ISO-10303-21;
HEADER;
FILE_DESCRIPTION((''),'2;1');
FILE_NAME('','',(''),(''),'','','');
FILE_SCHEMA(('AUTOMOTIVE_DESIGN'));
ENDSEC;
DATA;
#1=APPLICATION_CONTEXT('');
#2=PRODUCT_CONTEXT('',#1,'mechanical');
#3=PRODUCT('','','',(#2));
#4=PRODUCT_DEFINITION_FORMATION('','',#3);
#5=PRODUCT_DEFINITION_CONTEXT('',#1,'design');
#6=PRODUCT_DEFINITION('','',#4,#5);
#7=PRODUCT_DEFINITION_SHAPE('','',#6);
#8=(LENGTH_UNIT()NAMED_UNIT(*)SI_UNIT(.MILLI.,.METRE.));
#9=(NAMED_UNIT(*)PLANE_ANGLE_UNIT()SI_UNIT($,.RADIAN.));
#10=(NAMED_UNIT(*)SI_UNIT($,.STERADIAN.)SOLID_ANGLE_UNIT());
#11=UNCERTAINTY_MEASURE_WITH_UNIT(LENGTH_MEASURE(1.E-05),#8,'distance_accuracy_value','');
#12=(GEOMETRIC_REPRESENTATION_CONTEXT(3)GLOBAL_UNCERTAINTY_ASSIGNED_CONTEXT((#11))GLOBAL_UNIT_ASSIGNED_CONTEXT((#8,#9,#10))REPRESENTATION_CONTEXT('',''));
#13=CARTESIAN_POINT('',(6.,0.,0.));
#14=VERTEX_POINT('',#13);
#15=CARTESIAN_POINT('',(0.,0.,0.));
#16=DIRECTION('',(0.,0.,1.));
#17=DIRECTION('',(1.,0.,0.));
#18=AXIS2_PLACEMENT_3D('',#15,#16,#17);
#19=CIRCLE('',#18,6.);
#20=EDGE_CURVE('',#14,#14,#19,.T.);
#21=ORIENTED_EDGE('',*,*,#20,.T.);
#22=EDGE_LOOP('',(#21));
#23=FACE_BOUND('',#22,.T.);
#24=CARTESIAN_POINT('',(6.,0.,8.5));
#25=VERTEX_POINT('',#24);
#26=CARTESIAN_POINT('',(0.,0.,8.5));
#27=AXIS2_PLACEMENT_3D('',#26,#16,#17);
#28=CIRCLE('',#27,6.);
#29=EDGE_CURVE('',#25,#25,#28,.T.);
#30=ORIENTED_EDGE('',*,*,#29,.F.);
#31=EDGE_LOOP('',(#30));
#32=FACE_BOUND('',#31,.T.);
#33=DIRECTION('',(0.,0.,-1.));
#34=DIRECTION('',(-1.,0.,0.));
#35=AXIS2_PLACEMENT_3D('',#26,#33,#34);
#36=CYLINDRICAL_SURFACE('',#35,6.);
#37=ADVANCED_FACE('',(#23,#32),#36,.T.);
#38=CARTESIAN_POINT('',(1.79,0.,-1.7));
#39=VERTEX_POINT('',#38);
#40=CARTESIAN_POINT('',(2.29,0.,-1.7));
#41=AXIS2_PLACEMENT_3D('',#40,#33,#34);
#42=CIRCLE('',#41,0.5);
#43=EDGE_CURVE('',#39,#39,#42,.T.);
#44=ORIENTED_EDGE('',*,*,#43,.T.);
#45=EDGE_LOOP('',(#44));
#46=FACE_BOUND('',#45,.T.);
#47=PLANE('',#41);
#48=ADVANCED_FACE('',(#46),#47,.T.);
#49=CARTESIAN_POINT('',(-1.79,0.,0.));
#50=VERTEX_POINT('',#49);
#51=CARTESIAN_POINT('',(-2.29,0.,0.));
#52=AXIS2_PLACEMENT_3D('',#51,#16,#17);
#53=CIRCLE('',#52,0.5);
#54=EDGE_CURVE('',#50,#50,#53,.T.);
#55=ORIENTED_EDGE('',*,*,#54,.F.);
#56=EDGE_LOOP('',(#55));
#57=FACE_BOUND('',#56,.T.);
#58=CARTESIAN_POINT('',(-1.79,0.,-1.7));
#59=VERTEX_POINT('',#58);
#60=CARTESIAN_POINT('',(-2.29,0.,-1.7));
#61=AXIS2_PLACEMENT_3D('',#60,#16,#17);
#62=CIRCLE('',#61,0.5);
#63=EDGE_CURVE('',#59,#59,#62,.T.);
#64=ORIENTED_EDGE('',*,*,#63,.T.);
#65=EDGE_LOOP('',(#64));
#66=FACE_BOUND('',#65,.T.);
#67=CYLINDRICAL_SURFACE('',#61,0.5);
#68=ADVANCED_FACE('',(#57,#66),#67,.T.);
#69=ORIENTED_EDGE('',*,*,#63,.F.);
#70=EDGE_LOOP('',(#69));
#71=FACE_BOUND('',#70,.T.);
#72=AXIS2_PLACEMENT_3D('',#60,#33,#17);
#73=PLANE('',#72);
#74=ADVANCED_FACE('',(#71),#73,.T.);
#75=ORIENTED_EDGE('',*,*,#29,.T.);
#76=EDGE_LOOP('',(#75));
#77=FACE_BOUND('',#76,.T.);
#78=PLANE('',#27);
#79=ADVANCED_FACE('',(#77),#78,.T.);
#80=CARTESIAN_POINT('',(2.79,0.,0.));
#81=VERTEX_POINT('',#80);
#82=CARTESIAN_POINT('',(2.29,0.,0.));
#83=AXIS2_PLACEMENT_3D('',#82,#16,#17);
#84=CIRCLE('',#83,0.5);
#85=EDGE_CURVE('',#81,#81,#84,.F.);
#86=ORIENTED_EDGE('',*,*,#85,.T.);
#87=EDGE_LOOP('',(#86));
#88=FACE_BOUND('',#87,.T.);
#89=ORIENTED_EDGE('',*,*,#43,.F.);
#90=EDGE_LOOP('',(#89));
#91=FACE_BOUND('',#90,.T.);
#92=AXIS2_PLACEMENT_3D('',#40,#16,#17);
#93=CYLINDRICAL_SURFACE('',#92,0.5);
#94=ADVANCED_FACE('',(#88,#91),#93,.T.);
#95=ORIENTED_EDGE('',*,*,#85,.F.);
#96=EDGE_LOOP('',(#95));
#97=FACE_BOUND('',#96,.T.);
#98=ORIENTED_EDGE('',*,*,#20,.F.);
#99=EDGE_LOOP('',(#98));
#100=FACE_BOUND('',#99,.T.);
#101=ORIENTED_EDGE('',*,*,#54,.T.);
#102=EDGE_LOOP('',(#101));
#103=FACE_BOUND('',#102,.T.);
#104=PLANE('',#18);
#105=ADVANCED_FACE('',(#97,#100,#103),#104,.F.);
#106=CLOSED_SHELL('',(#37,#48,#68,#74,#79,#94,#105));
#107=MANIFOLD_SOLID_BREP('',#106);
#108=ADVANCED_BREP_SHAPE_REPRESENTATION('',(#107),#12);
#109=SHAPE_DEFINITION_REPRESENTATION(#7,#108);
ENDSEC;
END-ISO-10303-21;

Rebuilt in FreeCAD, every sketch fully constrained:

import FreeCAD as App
import Part
import Sketcher

V = App.Vector
Q = App.Units.Quantity

doc = App.newDocument("Part")
params = doc.addObject("Spreadsheet::Sheet", "Params")
for row, (alias, value) in enumerate([
    ("sketch1_diameter", "12 mm"),
    ("pad1_length", "8.5 mm"),
    ("sketch2_diameter", "1 mm"),
    ("pad2_length", "1.7 mm"),
], start=1):
    params.set(f"A{row}", alias)
    params.set(f"B{row}", "=" + value)
    params.setAlias(f"B{row}", alias)

body = doc.addObject("PartDesign::Body", "Body")

# Sketch on XY plane
sketch1 = doc.addObject("Sketcher::SketchObject", "Sketch")
body.addObject(sketch1)
sketch1.AttachmentSupport = (doc.XY_Plane, [""])
sketch1.MapMode = "FlatFace"
sketch1.addGeometry(Part.Circle(V(0, 0, 0), V(0, 0, 1), 6), False)
sketch1.addConstraint([
    Sketcher.Constraint("Coincident", 0, 3, -1, 1),
    Sketcher.Constraint("Diameter", 0, Q("12 mm")),
])
sketch1.setExpression("Constraints[1]", "Params.sketch1_diameter")
pad1 = doc.addObject("PartDesign::Pad", "Pad")
body.addObject(pad1)
pad1.Profile = sketch1
pad1.setExpression("Length", "Params.pad1_length")

# Sketch on XY plane
sketch2 = doc.addObject("Sketcher::SketchObject", "Sketch001")
body.addObject(sketch2)
sketch2.AttachmentSupport = (doc.XY_Plane, [""])
sketch2.MapMode = "FlatFace"
sketch2.addGeometry(Part.Circle(V(2.3, 0, 0), V(0, 0, 1), 0.5), False)
sketch2.addConstraint([
    Sketcher.Constraint("PointOnObject", 0, 3, -1),
    Sketcher.Constraint("Diameter", 0, Q("1 mm")),
    Sketcher.Constraint("DistanceX", -1, 1, 0, 3, Q("2.29 mm")),
])
sketch2.setExpression("Constraints[1]", "Params.sketch2_diameter")
pad2 = doc.addObject("PartDesign::Pad", "Pad001")
body.addObject(pad2)
pad2.Profile = sketch2
pad2.setExpression("Length", "Params.pad2_length")
pad2.Reversed = True
doc.recompute()

mirrored = doc.addObject("PartDesign::Mirrored", "Mirrored")
body.addObject(mirrored)
mirrored.Originals = [pad2]
mirrored.MirrorPlane = (doc.YZ_Plane, [""])
body.Tip = mirrored

doc.recompute()
